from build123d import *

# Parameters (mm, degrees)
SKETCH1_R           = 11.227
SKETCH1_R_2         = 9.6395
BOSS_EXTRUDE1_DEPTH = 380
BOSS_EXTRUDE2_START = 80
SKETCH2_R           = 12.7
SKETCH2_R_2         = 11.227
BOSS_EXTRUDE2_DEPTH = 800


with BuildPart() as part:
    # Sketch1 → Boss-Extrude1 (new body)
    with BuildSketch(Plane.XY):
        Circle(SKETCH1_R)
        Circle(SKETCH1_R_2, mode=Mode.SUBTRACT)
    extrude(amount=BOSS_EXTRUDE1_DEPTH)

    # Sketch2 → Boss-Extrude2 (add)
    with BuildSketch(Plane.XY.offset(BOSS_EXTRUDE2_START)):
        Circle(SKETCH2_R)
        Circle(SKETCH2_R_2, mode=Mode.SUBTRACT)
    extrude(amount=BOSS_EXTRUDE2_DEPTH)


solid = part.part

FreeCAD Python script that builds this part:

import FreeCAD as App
import Part
import Sketcher

V = App.Vector
Q = App.Units.Quantity

doc = App.newDocument("Part")
params = doc.addObject("Spreadsheet::Sheet", "Params")
for row, (alias, value) in enumerate([
    ("pad1_length", "380 mm"),
    ("sketch2_diameter", "25.4 mm"),
    ("pad2_length", "800 mm"),
], start=1):
    params.set(f"A{row}", alias)
    params.set(f"B{row}", "=" + value)
    params.setAlias(f"B{row}", alias)

body = doc.addObject("PartDesign::Body", "Body")

# Sketch on XY plane
sketch1 = body.newObject("Sketcher::SketchObject", "Sketch")
sketch1.AttachmentSupport = (doc.getObject("XY_Plane"), [""])
sketch1.MapMode = "FlatFace"
sketch1.addGeometry([
    Part.Circle(V(0, 0, 0), V(0, 0, 1), 11),
    Part.Circle(V(0, 0, 0), V(0, 0, 1), 10),
], False)
sketch1.addConstraint([
    Sketcher.Constraint("Coincident", 0, 3, -1, 1),
    Sketcher.Constraint("Coincident", 1, 3, -1, 1),
    Sketcher.Constraint("Diameter", 0, Q("22.454 mm")),
    Sketcher.Constraint("Diameter", 1, Q("19.279 mm")),
])
pad1 = body.newObject("PartDesign::Pad", "Pad")
pad1.Profile = sketch1
pad1.setExpression("Length", "Params.pad1_length")

# Sketch on XY plane
sketch2 = body.newObject("Sketcher::SketchObject", "Sketch001")
sketch2.AttachmentSupport = (doc.getObject("XY_Plane"), [""])
sketch2.MapMode = "FlatFace"
sketch2.AttachmentOffset = App.Placement(V(0, 0, 80), App.Rotation())
sketch2.addGeometry([
    Part.Circle(V(0, 0, 0), V(0, 0, 1), 13),
    Part.Circle(V(0, 0, 0), V(0, 0, 1), 11),
], False)
sketch2.addConstraint([
    Sketcher.Constraint("Coincident", 0, 3, -1, 1),
    Sketcher.Constraint("Coincident", 1, 3, -1, 1),
    Sketcher.Constraint("Diameter", 0, Q("25.4 mm")),
    Sketcher.Constraint("Diameter", 1, Q("22.454 mm")),
])
sketch2.setExpression("Constraints[2]", "Params.sketch2_diameter")
pad2 = body.newObject("PartDesign::Pad", "Pad001")
pad2.Profile = sketch2
pad2.setExpression("Length", "Params.pad2_length")

doc.recompute()
